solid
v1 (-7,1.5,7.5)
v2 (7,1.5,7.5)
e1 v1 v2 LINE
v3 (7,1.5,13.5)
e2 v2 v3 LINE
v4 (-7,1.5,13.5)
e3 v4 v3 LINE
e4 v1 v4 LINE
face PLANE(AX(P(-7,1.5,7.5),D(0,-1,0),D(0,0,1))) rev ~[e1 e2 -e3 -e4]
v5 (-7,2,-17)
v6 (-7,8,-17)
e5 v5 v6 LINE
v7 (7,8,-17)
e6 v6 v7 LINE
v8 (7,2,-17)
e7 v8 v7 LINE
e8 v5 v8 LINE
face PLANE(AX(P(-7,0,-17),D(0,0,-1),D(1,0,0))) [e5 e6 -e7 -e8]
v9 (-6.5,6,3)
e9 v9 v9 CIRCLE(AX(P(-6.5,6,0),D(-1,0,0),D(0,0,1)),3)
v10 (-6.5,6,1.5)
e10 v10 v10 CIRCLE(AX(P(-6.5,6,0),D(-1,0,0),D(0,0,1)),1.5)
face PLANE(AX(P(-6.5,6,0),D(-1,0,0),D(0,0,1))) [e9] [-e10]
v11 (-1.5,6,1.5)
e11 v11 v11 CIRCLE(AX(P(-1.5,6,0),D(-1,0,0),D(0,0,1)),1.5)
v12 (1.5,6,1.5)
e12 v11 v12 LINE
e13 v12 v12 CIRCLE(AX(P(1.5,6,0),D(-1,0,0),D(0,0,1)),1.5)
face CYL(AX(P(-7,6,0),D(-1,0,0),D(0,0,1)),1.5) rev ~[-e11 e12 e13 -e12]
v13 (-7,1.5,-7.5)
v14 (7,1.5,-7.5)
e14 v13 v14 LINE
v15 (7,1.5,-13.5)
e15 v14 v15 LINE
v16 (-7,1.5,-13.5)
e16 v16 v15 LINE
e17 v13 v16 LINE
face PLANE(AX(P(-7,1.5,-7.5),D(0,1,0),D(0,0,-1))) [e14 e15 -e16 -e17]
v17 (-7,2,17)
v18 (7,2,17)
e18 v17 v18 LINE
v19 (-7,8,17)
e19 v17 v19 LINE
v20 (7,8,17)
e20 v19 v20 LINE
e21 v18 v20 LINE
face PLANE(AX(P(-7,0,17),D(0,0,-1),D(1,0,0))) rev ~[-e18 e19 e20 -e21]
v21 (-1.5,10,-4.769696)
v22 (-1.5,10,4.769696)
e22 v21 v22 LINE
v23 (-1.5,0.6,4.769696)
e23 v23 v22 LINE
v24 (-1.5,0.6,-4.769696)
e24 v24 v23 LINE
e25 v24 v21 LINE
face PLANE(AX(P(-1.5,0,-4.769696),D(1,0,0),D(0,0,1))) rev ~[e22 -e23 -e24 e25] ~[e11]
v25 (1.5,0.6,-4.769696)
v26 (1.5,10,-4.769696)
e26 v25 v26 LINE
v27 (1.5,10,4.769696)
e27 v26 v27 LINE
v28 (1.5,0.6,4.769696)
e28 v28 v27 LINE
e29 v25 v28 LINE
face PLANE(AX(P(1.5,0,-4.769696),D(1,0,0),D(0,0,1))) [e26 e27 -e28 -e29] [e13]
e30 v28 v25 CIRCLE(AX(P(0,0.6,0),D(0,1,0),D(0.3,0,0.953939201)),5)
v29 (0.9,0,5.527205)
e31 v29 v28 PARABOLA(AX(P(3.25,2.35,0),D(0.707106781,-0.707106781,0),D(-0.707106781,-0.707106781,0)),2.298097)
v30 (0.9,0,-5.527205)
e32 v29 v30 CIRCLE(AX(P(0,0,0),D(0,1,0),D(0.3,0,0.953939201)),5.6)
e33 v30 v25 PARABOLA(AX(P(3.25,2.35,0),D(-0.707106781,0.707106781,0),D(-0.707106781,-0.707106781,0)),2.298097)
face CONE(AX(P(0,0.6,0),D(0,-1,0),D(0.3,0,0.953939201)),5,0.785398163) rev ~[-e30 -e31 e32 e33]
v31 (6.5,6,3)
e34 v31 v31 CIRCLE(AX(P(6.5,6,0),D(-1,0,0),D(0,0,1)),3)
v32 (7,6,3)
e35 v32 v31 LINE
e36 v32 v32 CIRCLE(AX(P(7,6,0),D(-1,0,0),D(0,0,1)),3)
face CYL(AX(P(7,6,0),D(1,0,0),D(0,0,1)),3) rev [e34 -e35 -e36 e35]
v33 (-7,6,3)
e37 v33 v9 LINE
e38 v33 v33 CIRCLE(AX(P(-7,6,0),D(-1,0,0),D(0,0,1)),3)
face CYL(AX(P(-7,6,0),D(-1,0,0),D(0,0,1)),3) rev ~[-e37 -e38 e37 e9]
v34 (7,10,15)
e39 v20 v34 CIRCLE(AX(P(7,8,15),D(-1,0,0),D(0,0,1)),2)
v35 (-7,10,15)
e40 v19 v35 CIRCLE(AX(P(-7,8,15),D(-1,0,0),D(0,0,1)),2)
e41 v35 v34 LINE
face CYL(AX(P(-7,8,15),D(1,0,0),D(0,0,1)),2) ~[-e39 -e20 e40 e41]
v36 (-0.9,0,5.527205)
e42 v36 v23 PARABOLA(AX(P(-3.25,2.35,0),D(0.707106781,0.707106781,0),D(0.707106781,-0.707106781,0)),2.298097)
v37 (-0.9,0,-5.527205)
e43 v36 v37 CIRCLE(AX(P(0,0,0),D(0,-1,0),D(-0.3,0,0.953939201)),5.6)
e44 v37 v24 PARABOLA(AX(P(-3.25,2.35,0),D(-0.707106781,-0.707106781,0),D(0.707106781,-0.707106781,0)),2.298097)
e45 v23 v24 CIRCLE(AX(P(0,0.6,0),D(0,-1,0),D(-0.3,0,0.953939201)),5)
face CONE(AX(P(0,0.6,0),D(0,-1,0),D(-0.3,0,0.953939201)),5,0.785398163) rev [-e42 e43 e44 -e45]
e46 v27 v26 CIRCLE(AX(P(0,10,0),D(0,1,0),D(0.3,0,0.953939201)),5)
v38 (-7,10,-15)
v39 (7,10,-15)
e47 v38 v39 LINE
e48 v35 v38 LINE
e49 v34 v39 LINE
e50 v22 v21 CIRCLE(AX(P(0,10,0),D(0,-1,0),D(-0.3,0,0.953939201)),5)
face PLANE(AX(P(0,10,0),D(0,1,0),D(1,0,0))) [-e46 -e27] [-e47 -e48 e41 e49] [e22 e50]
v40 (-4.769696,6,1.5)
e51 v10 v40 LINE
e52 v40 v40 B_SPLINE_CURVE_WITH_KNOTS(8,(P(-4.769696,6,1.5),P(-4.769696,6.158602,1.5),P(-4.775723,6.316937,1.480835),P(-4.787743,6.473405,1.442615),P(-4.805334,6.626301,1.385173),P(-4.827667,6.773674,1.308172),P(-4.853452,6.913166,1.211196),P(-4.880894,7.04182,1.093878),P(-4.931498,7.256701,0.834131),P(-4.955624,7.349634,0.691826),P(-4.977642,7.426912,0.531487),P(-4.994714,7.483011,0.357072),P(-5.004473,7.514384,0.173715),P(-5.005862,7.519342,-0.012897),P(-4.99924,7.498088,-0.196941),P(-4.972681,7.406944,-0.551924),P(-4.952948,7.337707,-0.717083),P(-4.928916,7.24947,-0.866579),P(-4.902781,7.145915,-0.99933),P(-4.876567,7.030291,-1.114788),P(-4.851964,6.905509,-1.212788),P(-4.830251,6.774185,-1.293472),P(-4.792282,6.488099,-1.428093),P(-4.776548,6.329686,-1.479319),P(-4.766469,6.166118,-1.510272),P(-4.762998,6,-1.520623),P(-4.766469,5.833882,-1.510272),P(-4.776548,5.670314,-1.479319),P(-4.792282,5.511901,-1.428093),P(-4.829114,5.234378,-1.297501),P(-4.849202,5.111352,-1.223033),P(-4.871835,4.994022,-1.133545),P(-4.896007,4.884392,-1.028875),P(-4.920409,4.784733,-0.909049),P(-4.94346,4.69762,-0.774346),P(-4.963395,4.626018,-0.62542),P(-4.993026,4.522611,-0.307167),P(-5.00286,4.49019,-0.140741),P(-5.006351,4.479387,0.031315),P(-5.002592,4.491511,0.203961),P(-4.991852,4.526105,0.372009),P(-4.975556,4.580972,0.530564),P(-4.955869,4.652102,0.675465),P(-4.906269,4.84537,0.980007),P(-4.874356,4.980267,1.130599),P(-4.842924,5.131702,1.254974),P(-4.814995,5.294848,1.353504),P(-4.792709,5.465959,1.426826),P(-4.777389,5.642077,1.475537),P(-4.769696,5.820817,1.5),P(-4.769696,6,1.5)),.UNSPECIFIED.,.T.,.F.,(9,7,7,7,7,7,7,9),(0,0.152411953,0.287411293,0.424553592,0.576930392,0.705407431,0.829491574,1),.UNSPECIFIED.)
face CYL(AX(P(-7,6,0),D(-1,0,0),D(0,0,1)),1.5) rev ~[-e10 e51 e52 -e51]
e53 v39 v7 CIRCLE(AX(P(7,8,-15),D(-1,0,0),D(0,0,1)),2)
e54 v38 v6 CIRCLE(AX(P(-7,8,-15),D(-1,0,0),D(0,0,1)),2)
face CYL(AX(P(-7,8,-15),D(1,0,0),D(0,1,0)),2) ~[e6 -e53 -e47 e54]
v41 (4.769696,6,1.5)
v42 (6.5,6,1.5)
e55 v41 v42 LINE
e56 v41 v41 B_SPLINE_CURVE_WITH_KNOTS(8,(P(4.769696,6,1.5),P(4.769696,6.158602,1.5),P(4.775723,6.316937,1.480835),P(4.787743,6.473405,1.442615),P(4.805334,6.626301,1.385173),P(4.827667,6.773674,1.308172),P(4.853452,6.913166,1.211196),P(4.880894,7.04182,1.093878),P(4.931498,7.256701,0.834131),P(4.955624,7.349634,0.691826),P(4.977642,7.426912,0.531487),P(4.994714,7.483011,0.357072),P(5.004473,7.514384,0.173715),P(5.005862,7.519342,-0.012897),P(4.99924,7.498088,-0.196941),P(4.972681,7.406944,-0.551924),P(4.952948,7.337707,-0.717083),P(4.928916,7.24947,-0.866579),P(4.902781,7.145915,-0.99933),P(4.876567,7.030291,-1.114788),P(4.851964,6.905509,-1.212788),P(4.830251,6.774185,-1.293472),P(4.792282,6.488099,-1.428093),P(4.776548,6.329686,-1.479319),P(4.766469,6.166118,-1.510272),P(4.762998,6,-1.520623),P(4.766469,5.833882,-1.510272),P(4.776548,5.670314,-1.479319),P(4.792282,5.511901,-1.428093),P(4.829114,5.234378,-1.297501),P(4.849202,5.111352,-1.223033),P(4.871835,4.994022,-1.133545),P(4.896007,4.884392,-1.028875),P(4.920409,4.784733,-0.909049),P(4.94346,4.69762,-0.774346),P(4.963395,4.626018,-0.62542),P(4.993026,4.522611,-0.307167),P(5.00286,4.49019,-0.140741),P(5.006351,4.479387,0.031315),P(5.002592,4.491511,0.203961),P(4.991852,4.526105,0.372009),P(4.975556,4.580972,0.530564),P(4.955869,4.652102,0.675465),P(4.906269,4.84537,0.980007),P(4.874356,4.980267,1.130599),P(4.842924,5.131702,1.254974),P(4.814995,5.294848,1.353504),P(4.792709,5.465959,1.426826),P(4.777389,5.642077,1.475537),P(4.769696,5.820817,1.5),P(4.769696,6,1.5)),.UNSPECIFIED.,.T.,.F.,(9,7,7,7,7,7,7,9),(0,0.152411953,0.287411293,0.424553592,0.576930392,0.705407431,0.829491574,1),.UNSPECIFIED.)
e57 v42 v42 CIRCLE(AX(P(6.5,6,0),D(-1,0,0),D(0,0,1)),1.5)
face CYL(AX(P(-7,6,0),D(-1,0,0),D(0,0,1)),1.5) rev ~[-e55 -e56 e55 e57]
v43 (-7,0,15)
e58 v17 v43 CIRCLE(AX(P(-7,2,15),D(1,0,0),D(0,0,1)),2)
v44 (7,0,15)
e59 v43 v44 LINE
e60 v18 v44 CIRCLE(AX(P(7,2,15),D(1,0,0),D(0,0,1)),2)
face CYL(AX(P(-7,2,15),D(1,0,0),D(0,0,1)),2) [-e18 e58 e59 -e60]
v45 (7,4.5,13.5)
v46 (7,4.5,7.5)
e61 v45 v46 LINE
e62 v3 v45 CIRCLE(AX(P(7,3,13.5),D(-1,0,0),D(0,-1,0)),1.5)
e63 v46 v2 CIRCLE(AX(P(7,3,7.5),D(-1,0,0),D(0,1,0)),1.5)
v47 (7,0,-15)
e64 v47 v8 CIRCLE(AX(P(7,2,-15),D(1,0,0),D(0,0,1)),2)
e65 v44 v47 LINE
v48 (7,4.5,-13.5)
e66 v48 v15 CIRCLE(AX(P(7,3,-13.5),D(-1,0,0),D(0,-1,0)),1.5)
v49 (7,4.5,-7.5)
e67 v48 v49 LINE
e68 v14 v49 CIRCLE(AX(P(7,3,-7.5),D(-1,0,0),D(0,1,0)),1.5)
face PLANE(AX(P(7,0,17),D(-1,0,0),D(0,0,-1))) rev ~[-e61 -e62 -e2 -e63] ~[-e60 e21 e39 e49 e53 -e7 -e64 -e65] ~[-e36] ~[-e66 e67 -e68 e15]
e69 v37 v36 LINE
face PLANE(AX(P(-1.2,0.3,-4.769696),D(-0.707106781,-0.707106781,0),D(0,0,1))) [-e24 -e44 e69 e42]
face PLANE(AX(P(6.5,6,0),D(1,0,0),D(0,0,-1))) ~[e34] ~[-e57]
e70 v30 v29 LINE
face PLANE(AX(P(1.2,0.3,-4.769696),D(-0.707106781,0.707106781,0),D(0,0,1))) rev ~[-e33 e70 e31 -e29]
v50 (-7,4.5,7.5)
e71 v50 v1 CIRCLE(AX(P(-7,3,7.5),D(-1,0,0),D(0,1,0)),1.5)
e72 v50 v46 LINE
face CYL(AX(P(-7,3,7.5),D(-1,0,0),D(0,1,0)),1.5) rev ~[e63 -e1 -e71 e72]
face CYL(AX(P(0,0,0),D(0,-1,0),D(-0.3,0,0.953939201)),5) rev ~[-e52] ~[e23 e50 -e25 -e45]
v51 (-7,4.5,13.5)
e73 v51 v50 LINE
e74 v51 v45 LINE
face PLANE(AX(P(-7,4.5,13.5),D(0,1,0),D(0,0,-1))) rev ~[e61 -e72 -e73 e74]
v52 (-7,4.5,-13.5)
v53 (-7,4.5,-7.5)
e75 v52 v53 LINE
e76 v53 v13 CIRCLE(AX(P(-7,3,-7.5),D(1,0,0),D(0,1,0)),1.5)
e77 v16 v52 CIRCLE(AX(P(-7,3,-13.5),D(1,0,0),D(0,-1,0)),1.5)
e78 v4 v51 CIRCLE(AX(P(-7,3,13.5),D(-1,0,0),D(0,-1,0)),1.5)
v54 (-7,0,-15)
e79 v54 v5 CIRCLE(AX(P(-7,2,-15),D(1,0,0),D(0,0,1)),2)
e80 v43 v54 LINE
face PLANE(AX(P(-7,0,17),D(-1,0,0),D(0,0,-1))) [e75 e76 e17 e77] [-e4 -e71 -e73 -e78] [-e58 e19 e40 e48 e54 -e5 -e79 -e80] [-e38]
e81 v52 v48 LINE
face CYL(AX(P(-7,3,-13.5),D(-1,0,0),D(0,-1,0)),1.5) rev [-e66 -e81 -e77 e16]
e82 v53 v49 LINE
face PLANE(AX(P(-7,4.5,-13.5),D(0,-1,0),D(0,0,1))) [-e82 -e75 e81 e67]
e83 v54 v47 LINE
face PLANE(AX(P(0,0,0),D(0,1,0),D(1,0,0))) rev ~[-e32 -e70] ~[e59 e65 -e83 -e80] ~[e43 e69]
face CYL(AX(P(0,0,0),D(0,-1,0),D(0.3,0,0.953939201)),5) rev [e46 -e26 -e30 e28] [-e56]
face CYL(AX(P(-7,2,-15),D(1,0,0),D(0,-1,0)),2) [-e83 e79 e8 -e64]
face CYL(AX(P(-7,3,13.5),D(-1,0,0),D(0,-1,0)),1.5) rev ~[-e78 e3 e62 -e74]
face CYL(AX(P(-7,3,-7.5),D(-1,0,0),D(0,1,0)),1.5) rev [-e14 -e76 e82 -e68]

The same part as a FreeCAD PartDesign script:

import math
import FreeCAD as App
import Part
import Sketcher
from FreeCAD import Vector


def edges_at(feature, points):
    """Names of the edges that pass closest to the given points."""
    edges = feature.Shape.Edges
    near = lambda p: min(range(len(edges)), key=lambda i: edges[i].distToShape(Part.Vertex(*p))[0])
    return sorted({f"Edge{near(p) + 1}" for p in points})

doc = App.newDocument("Part")
body = doc.addObject("PartDesign::Body", "Body")

sketch1 = body.newObject("Sketcher::SketchObject", "Sketch")
sketch1.AttachmentSupport = (doc.getObject("XZ_Plane"), [""])
sketch1.MapMode = "FlatFace"
sketch1.addGeometry([
    Part.LineSegment(Vector(-7, -17, 0), Vector(-7, 17, 0)),
    Part.LineSegment(Vector(-7, 17, 0), Vector(7, 17, 0)),
    Part.LineSegment(Vector(7, 17, 0), Vector(7, -17, 0)),
    Part.LineSegment(Vector(7, -17, 0), Vector(-7, -17, 0)),
    Part.ArcOfCircle(Part.Circle(Vector(0, 0, 0), Vector(0, 0, 1), 5), math.radians(107), math.radians(253)),
    Part.LineSegment(Vector(-2, -5, 0), Vector(-2, 5, 0)),
    Part.LineSegment(Vector(2, 5, 0), Vector(2, -5, 0)),
    Part.ArcOfCircle(Part.Circle(Vector(0, 0, 0), Vector(0, 0, 1), 5), math.radians(-73), math.radians(73)),
], False)
sketch1.addConstraint([
    Sketcher.Constraint("Coincident", 0, 2, 1, 1),
    Sketcher.Constraint("Coincident", 1, 2, 2, 1),
    Sketcher.Constraint("Coincident", 2, 2, 3, 1),
    Sketcher.Constraint("Coincident", 3, 2, 0, 1),
    Sketcher.Constraint("Coincident", 4, 1, 5, 2),
    Sketcher.Constraint("Coincident", 5, 1, 4, 2),
    Sketcher.Constraint("Coincident", 6, 1, 7, 2),
    Sketcher.Constraint("Coincident", 7, 1, 6, 2),
    Sketcher.Constraint("Vertical", 0),
    Sketcher.Constraint("Horizontal", 1),
    Sketcher.Constraint("Vertical", 2),
    Sketcher.Constraint("Horizontal", 3),
    Sketcher.Constraint("Vertical", 5),
    Sketcher.Constraint("Vertical", 6),
    Sketcher.Constraint("Coincident", 4, 3, -1, 1),
    Sketcher.Constraint("Coincident", 7, 3, -1, 1),
    Sketcher.Constraint("Equal", 4, 7),
    Sketcher.Constraint("Symmetric", 0, 2, 2, 2, -1, 1),
    Sketcher.Constraint("Horizontal", 4, 1, 6, 1),
    Sketcher.Constraint("Radius", 4, 5.0),
    Sketcher.Constraint("DistanceX", 1, 1, 1, 2, 14.0),
    Sketcher.Constraint("DistanceY", 0, 1, 0, 2, 34.0),
    Sketcher.Constraint("DistanceX", 4, 1, 6, 1, 3.0),
])
pad1 = body.newObject("PartDesign::Pad", "Pad")
pad1.Profile = sketch1
pad1.Length = 10
pad1.Reversed = True

sketch2 = body.newObject("Sketcher::SketchObject", "Sketch001")
sketch2.AttachmentSupport = (doc.getObject("YZ_Plane"), [""])
sketch2.MapMode = "FlatFace"
sketch2.AttachmentOffset = App.Placement(Vector(0, 0, -7), App.Rotation())
sketch2.addGeometry(Part.Circle(Vector(6, 0, 0), Vector(0, 0, 1), 1.5), False)
sketch2.addConstraint([
    Sketcher.Constraint("PointOnObject", 0, 3, -1),
    Sketcher.Constraint("Diameter", 0, 3.0),
    Sketcher.Constraint("DistanceX", -1, 1, 0, 3, 6.0),
])
pocket1 = body.newObject("PartDesign::Pocket", "Pocket")
pocket1.Profile = sketch2
pocket1.Type = "ThroughAll"
pocket1.Reversed = True

sketch3 = body.newObject("Sketcher::SketchObject", "Sketch002")
sketch3.AttachmentSupport = (doc.getObject("YZ_Plane"), [""])
sketch3.MapMode = "FlatFace"
sketch3.AttachmentOffset = App.Placement(Vector(0, 0, -7), App.Rotation())
sketch3.addGeometry(Part.Circle(Vector(6, 0, 0), Vector(0, 0, 1), 3), False)
sketch3.addConstraint([
    Sketcher.Constraint("PointOnObject", 0, 3, -1),
    Sketcher.Constraint("Diameter", 0, 6.0),
    Sketcher.Constraint("DistanceX", -1, 1, 0, 3, 6.0),
])
pocket2 = body.newObject("PartDesign::Pocket", "Pocket001")
pocket2.Profile = sketch3
pocket2.Length = 0.5
pocket2.Reversed = True
doc.recompute()

mirrored = body.newObject("PartDesign::Mirrored", "Mirrored")
mirrored.Originals = [pocket2]
mirrored.MirrorPlane = (doc.getObject("YZ_Plane"), [""])
body.Tip = mirrored

sketch4 = body.newObject("Sketcher::SketchObject", "Sketch003")
sketch4.AttachmentSupport = (doc.getObject("YZ_Plane"), [""])
sketch4.MapMode = "FlatFace"
sketch4.AttachmentOffset = App.Placement(Vector(0, 0, -7), App.Rotation())
sketch4.addGeometry([
    Part.LineSegment(Vector(4.5, -7.5, 0), Vector(4.5, -13.5, 0)),
    Part.ArcOfCircle(Part.Circle(Vector(3, -13.5, 0), Vector(0, 0, 1), 1.5), math.radians(180), math.radians(360)),
    Part.LineSegment(Vector(1.5, -13.5, 0), Vector(1.5, -7.5, 0)),
    Part.ArcOfCircle(Part.Circle(Vector(3, -7.5, 0), Vector(0, 0, 1), 1.5), math.radians(0), math.radians(180)),
    Part.LineSegment(Vector(1.5, 7.5, 0), Vector(1.5, 13.5, 0)),
    Part.ArcOfCircle(Part.Circle(Vector(3, 13.5, 0), Vector(0, 0, 1), 1.5), math.radians(0), math.radians(180)),
    Part.LineSegment(Vector(4.5, 13.5, 0), Vector(4.5, 7.5, 0)),
    Part.ArcOfCircle(Part.Circle(Vector(3, 7.5, 0), Vector(0, 0, 1), 1.5), math.radians(180), math.radians(360)),
], False)
sketch4.addConstraint([
    Sketcher.Constraint("Tangent", 0, 2, 1, 2),
    Sketcher.Constraint("Tangent", 1, 1, 2, 1),
    Sketcher.Constraint("Tangent", 2, 2, 3, 2),
    Sketcher.Constraint("Tangent", 3, 1, 0, 1),
    Sketcher.Constraint("Tangent", 4, 2, 5, 2),
    Sketcher.Constraint("Tangent", 5, 1, 6, 1),
    Sketcher.Constraint("Tangent", 6, 2, 7, 2),
    Sketcher.Constraint("Tangent", 7, 1, 4, 1),
    Sketcher.Constraint("Vertical", 0),
    Sketcher.Constraint("Vertical", 2),
    Sketcher.Constraint("Vertical", 4),
    Sketcher.Constraint("Vertical", 6),
    Sketcher.Constraint("Equal", 3, 5),
    Sketcher.Constraint("Symmetric", 1, 3, 5, 3, -1),
    Sketcher.Constraint("Equal", 2, 4),
    Sketcher.Constraint("Radius", 1, 1.5),
    Sketcher.Constraint("DistanceY", 0, 2, 0, 1, 6.0),
    Sketcher.Constraint("DistanceX", -1, 1, 1, 3, 3.0),
    Sketcher.Constraint("DistanceY", 3, 3, 5, 3, 21.0),
])
pocket3 = body.newObject("PartDesign::Pocket", "Pocket002")
pocket3.Profile = sketch4
pocket3.Type = "ThroughAll"
pocket3.Reversed = True
doc.recompute()

fillet = body.newObject("PartDesign::Fillet", "Fillet")
fillet.Base = (pocket3, edges_at(pocket3, [
    (0, 10, 17),
    (0, 0, 17),
    (0, 0, -17),
    (0, 10, -17),
]))
fillet.Radius = 2
doc.recompute()

chamfer = body.newObject("PartDesign::Chamfer", "Chamfer")
chamfer.Base = (fillet, edges_at(fillet, [
    (5, 0, 0),
    (1.5, 0, 0),
    (-5, 0, 0),
    (-1.5, 0, 0),
]))
chamfer.Size = 0.6

doc.recompute()
